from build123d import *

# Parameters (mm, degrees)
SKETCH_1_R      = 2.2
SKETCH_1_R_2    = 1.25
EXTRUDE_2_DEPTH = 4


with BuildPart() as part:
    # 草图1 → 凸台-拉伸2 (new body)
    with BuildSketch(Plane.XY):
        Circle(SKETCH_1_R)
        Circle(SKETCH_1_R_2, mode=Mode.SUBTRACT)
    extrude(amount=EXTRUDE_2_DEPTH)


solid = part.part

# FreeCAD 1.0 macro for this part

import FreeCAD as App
import Part
import Sketcher
Q = App.Units.Quantity

doc = App.newDocument("Part")
body = doc.addObject("PartDesign::Body", "Body")

# Sketch on XY plane
sketch1 = doc.addObject("Sketcher::SketchObject", "Sketch")
body.addObject(sketch1)
sketch1.AttachmentSupport = (doc.XY_Plane, [""])
sketch1.MapMode = "FlatFace"
sketch1.addGeometry(Part.Circle(App.Vector(0, 0, 0), App.Vector(0, 0, 1), 2.2), False)
sketch1.addGeometry(Part.Circle(App.Vector(0, 0, 0), App.Vector(0, 0, 1), 1.2), False)
sketch1.addConstraint(Sketcher.Constraint("Coincident", 0, 3, -1, 1))
sketch1.addConstraint(Sketcher.Constraint("Coincident", 1, 3, -1, 1))
sketch1.addConstraint(Sketcher.Constraint("Diameter", 0, Q("4.4 mm")))
sketch1.addConstraint(Sketcher.Constraint("Diameter", 1, Q("2.5 mm")))
pad1 = doc.addObject("PartDesign::Pad", "Pad")
body.addObject(pad1)
pad1.Profile = sketch1
pad1.Length = 4

doc.recompute()
